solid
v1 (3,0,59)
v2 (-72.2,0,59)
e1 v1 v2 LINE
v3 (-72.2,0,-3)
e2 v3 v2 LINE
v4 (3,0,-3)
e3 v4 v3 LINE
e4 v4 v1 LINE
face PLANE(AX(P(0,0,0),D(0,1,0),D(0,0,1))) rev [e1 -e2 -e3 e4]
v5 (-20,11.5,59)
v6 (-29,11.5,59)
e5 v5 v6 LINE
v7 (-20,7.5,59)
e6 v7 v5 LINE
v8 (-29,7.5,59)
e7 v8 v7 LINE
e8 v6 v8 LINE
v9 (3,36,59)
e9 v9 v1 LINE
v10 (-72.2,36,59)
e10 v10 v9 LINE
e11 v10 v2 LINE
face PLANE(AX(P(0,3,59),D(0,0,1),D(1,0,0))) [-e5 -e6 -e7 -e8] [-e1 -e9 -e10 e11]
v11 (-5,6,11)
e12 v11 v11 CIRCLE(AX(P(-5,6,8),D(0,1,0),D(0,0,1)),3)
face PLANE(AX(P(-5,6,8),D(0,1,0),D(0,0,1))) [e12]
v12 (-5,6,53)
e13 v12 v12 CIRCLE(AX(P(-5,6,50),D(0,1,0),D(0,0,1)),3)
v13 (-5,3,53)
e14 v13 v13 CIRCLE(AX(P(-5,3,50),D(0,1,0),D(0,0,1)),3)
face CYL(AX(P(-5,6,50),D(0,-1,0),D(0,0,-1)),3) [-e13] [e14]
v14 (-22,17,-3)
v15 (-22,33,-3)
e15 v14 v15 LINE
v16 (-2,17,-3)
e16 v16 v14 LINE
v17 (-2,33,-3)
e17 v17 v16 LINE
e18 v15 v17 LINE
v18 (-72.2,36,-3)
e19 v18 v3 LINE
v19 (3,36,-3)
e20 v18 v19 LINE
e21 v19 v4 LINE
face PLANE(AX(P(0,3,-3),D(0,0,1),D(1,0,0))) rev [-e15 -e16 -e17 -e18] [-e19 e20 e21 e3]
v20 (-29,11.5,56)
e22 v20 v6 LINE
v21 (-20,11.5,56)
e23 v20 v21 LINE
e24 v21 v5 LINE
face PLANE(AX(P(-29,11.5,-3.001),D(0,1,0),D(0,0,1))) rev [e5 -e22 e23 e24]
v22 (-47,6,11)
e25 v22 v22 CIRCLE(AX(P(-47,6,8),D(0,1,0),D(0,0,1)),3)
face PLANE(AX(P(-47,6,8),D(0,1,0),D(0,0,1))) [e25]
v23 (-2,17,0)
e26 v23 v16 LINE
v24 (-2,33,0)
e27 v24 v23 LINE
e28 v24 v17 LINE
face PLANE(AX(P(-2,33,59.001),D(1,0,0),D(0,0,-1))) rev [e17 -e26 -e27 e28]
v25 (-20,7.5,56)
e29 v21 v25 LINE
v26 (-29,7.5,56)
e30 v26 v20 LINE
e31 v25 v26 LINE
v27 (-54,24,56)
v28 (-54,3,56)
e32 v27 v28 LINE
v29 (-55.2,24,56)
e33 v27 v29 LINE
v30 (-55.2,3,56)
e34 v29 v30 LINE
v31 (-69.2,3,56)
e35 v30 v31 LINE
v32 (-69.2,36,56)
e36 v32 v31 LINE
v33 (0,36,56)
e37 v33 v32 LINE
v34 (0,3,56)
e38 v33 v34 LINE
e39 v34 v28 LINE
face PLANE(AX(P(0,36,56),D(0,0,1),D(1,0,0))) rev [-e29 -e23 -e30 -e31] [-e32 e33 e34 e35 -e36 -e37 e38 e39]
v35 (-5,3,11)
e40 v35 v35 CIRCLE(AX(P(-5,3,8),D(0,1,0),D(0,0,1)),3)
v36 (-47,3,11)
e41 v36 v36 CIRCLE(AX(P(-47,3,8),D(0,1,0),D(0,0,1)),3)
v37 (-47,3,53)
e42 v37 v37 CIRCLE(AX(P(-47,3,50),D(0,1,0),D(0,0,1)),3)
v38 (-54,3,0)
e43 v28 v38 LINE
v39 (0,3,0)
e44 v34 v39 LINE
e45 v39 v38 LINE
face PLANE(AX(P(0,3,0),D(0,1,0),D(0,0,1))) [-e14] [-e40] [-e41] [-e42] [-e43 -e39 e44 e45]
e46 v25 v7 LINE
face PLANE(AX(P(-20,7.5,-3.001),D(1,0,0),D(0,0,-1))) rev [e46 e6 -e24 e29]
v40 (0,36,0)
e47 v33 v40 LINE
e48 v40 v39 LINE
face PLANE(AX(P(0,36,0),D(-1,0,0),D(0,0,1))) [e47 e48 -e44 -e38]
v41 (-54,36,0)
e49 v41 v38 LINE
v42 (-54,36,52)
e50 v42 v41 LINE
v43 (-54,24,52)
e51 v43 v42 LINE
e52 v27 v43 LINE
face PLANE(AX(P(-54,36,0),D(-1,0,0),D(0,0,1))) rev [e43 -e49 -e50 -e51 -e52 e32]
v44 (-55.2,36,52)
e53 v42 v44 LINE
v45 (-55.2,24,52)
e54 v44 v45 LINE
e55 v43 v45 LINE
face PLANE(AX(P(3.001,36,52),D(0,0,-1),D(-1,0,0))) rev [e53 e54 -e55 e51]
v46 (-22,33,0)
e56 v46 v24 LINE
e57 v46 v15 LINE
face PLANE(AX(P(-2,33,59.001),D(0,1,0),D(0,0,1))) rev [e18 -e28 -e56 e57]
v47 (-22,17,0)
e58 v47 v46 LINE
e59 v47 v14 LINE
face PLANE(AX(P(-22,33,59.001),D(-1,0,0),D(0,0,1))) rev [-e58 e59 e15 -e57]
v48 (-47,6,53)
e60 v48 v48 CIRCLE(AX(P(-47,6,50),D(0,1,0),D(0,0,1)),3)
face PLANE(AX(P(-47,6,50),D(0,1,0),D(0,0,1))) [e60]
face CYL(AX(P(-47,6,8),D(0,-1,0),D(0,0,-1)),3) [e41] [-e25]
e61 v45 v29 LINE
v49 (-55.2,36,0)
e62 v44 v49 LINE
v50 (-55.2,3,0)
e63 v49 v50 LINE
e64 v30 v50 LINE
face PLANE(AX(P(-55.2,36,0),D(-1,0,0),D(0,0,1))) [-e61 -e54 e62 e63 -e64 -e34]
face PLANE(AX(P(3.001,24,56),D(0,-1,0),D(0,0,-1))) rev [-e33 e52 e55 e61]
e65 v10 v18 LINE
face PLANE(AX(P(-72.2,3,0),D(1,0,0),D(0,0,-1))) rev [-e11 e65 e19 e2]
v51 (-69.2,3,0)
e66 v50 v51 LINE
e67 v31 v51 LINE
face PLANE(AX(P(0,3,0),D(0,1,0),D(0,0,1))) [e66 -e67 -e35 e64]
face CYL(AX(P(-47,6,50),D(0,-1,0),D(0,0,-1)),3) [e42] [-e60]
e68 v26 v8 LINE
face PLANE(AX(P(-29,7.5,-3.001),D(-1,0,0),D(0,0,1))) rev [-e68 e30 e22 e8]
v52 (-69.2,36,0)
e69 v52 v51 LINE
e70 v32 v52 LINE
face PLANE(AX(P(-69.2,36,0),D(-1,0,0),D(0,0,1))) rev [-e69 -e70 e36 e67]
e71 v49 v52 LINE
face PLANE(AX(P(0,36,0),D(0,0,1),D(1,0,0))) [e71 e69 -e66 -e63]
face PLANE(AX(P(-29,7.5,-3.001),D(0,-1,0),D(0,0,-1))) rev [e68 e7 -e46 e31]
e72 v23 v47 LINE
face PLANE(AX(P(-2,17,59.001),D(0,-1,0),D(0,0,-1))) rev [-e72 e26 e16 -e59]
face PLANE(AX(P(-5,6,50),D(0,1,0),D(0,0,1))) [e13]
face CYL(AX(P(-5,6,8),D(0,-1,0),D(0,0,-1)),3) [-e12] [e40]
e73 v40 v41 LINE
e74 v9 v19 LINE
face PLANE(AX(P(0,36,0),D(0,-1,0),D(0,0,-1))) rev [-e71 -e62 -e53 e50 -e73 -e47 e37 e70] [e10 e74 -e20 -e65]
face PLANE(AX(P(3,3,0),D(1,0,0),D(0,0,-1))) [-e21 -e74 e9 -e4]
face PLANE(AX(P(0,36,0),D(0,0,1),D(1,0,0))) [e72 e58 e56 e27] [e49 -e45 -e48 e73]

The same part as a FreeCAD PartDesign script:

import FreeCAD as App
import Part
import Sketcher

V = App.Vector
Q = App.Units.Quantity

doc = App.newDocument("Part")
params = doc.addObject("Spreadsheet::Sheet", "Params")
for row, (alias, value) in enumerate([
    ("sketch1_height", "62 mm"),
    ("sketch1_width", "75.2 mm"),
    ("pad1_length", "3 mm"),
    ("sketch2_diameter", "6 mm"),
    ("pad2_length", "3 mm"),
    ("sketch3_width", "54 mm"),
    ("sketch3_width2", "14 mm"),
    ("sketch3_height", "62 mm"),
    ("sketch3_height2", "56 mm"),
    ("sketch3_width3", "75.2 mm"),
    ("pad3_length", "33 mm"),
    ("sketch4_width", "9 mm"),
    ("sketch4_height", "4 mm"),
    ("sketch5_width", "12 mm"),
    ("sketch5_height", "4 mm"),
    ("sketch6_width", "20 mm"),
    ("sketch6_height", "16 mm"),
], start=1):
    params.set(f"A{row}", alias)
    params.set(f"B{row}", "=" + value)
    params.setAlias(f"B{row}", alias)

body = doc.addObject("PartDesign::Body", "Body")

# Sketch on XZ plane
sketch1 = body.newObject("Sketcher::SketchObject", "Sketch")
sketch1.AttachmentSupport = (doc.getObject("XZ_Plane"), [""])
sketch1.MapMode = "FlatFace"
sketch1.addGeometry([
    Part.LineSegment(V(-72, -3, 0), V(-72, 59, 0)),
    Part.LineSegment(V(-72, 59, 0), V(3, 59, 0)),
    Part.LineSegment(V(3, 59, 0), V(3, -3, 0)),
    Part.LineSegment(V(3, -3, 0), V(-72, -3, 0)),
], False)
sketch1.addConstraint([
    Sketcher.Constraint("Coincident", 0, 2, 1, 1),
    Sketcher.Constraint("Coincident", 1, 2, 2, 1),
    Sketcher.Constraint("Coincident", 2, 2, 3, 1),
    Sketcher.Constraint("Coincident", 3, 2, 0, 1),
    Sketcher.Constraint("Vertical", 0),
    Sketcher.Constraint("Horizontal", 1),
    Sketcher.Constraint("Vertical", 2),
    Sketcher.Constraint("Horizontal", 3),
    Sketcher.Constraint("DistanceY", 0, 1, 0, 2, Q("62 mm")),
    Sketcher.Constraint("DistanceX", 1, 1, 1, 2, Q("75.2 mm")),
    Sketcher.Constraint("DistanceY", -1, 1, 0, 2, Q("59 mm")),
    Sketcher.Constraint("DistanceX", -1, 1, 1, 2, Q("3 mm")),
])
sketch1.setExpression("Constraints[8]", "Params.sketch1_height")
sketch1.setExpression("Constraints[9]", "Params.sketch1_width")
pad1 = body.newObject("PartDesign::Pad", "Pad")
pad1.Profile = sketch1
pad1.setExpression("Length", "Params.pad1_length")
pad1.Reversed = True

# Sketch on XZ plane
sketch2 = body.newObject("Sketcher::SketchObject", "Sketch001")
sketch2.AttachmentSupport = (doc.getObject("XZ_Plane"), [""])
sketch2.MapMode = "FlatFace"
sketch2.AttachmentOffset = App.Placement(V(0, 0, -3), App.Rotation())
sketch2.addGeometry([
    Part.Circle(V(-47, 50, 0), V(0, 0, 1), 3),
    Part.Circle(V(-5, 50, 0), V(0, 0, 1), 3),
    Part.Circle(V(-5, 8, 0), V(0, 0, 1), 3),
    Part.Circle(V(-47, 8, 0), V(0, 0, 1), 3),
], False)
sketch2.addConstraint([
    Sketcher.Constraint("Equal", 0, 1),
    Sketcher.Constraint("Equal", 1, 2),
    Sketcher.Constraint("Equal", 2, 3),
    Sketcher.Constraint("Horizontal", 0, 3, 1, 3),
    Sketcher.Constraint("Horizontal", 2, 3, 3, 3),
    Sketcher.Constraint("Vertical", 1, 3, 2, 3),
    Sketcher.Constraint("Vertical", 0, 3, 3, 3),
    Sketcher.Constraint("Diameter", 0, Q("6 mm")),
    Sketcher.Constraint("DistanceX", 0, 3, -1, 1, Q("47 mm")),
    Sketcher.Constraint("DistanceY", -1, 1, 0, 3, Q("50 mm")),
    Sketcher.Constraint("DistanceX", 1, 3, -1, 1, Q("5 mm")),
    Sketcher.Constraint("DistanceY", -1, 1, 2, 3, Q("8 mm")),
])
sketch2.setExpression("Constraints[7]", "Params.sketch2_diameter")
pad2 = body.newObject("PartDesign::Pad", "Pad001")
pad2.Profile = sketch2
pad2.setExpression("Length", "Params.pad2_length")
pad2.Reversed = True

# Sketch on XZ plane
sketch3 = body.newObject("Sketcher::SketchObject", "Sketch002")
sketch3.AttachmentSupport = (doc.getObject("XZ_Plane"), [""])
sketch3.MapMode = "FlatFace"
sketch3.AttachmentOffset = App.Placement(V(0, 0, -3), App.Rotation())
sketch3.addGeometry([
    Part.LineSegment(V(-72, -3, 0), V(-72, 59, 0)),  # 0
    Part.LineSegment(V(-72, 59, 0), V(3, 59, 0)),  # 1
    Part.LineSegment(V(3, 59, 0), V(3, -3, 0)),  # 2
    Part.LineSegment(V(3, -3, 0), V(-72, -3, 0)),  # 3
    Part.LineSegment(V(0, 56, 0), V(-54, 56, 0)),  # 4
    Part.LineSegment(V(-54, 56, 0), V(-54, 0, 0)),  # 5
    Part.LineSegment(V(-54, 0, 0), V(0, 0, 0)),  # 6
    Part.LineSegment(V(0, 0, 0), V(0, 56, 0)),  # 7
    Part.LineSegment(V(-55, 56, 0), V(-69, 56, 0)),  # 8
    Part.LineSegment(V(-69, 56, 0), V(-69, 0, 0)),  # 9
    Part.LineSegment(V(-69, 0, 0), V(-55, 0, 0)),  # 10
    Part.LineSegment(V(-55, 0, 0), V(-55, 56, 0)),  # 11
], False)
sketch3.addConstraint([
    Sketcher.Constraint("Coincident", 0, 2, 1, 1),
    Sketcher.Constraint("Coincident", 1, 2, 2, 1),
    Sketcher.Constraint("Coincident", 2, 2, 3, 1),
    Sketcher.Constraint("Coincident", 3, 2, 0, 1),
    Sketcher.Constraint("Coincident", 4, 2, 5, 1),
    Sketcher.Constraint("Coincident", 5, 2, 6, 1),
    Sketcher.Constraint("Coincident", 6, 2, 7, 1),
    Sketcher.Constraint("Coincident", 7, 2, 4, 1),
    Sketcher.Constraint("Coincident", 8, 2, 9, 1),
    Sketcher.Constraint("Coincident", 9, 2, 10, 1),
    Sketcher.Constraint("Coincident", 10, 2, 11, 1),
    Sketcher.Constraint("Coincident", 11, 2, 8, 1),
    Sketcher.Constraint("Vertical", 0),
    Sketcher.Constraint("Horizontal", 1),
    Sketcher.Constraint("Vertical", 2),
    Sketcher.Constraint("Horizontal", 3),
    Sketcher.Constraint("Horizontal", 4),
    Sketcher.Constraint("Vertical", 5),
    Sketcher.Constraint("Horizontal", 6),
    Sketcher.Constraint("Vertical", 7),
    Sketcher.Constraint("Horizontal", 8),
    Sketcher.Constraint("Vertical", 9),
    Sketcher.Constraint("Horizontal", 10),
    Sketcher.Constraint("Vertical", 11),
    Sketcher.Constraint("Coincident", 6, 2, -1, 1),
    Sketcher.Constraint("PointOnObject", 9, 2, -1),
    Sketcher.Constraint("Horizontal", 7, 2, 8, 2),
    Sketcher.Constraint("DistanceX", 4, 2, 4, 1, Q("54 mm")),
    Sketcher.Constraint("DistanceX", 8, 2, 8, 1, Q("14 mm")),
    Sketcher.Constraint("DistanceY", 0, 1, 0, 2, Q("62 mm")),
    Sketcher.Constraint("DistanceY", 5, 2, 5, 1, Q("56 mm")),
    Sketcher.Constraint("DistanceX", 1, 1, 1, 2, Q("75.2 mm")),
    Sketcher.Constraint("DistanceY", -1, 1, 0, 2, Q("59 mm")),
    Sketcher.Constraint("DistanceX", -1, 1, 1, 2, Q("3 mm")),
    Sketcher.Constraint("DistanceX", 0, 2, 8, 2, Q("3 mm")),
])
sketch3.setExpression("Constraints[27]", "Params.sketch3_width")
sketch3.setExpression("Constraints[28]", "Params.sketch3_width2")
sketch3.setExpression("Constraints[29]", "Params.sketch3_height")
sketch3.setExpression("Constraints[30]", "Params.sketch3_height2")
sketch3.setExpression("Constraints[31]", "Params.sketch3_width3")
pad3 = body.newObject("PartDesign::Pad", "Pad002")
pad3.Profile = sketch3
pad3.setExpression("Length", "Params.pad3_length")
pad3.Reversed = True

# Sketch on XY plane
sketch4 = body.newObject("Sketcher::SketchObject", "Sketch003")
sketch4.AttachmentSupport = (doc.getObject("XY_Plane"), [""])
sketch4.MapMode = "FlatFace"
sketch4.AttachmentOffset = App.Placement(V(0, 0, 59), App.Rotation())
sketch4.addGeometry([
    Part.LineSegment(V(-29, 11.5, 0), V(-29, 7.5, 0)),
    Part.LineSegment(V(-29, 7.5, 0), V(-20, 7.5, 0)),
    Part.LineSegment(V(-20, 7.5, 0), V(-20, 11.5, 0)),
    Part.LineSegment(V(-20, 11.5, 0), V(-29, 11.5, 0)),
], False)
sketch4.addConstraint([
    Sketcher.Constraint("Coincident", 0, 2, 1, 1),
    Sketcher.Constraint("Coincident", 1, 2, 2, 1),
    Sketcher.Constraint("Coincident", 2, 2, 3, 1),
    Sketcher.Constraint("Coincident", 3, 2, 0, 1),
    Sketcher.Constraint("Vertical", 0),
    Sketcher.Constraint("Horizontal", 1),
    Sketcher.Constraint("Vertical", 2),
    Sketcher.Constraint("Horizontal", 3),
    Sketcher.Constraint("DistanceX", 1, 1, 1, 2, Q("9 mm")),
    Sketcher.Constraint("DistanceY", 0, 2, 0, 1, Q("4 mm")),
    Sketcher.Constraint("DistanceX", 0, 2, -1, 1, Q("29 mm")),
    Sketcher.Constraint("DistanceY", -1, 1, 0, 2, Q("7.5 mm")),
])
sketch4.setExpression("Constraints[8]", "Params.sketch4_width")
sketch4.setExpression("Constraints[9]", "Params.sketch4_height")
pocket1 = body.newObject("PartDesign::Pocket", "Pocket")
pocket1.Profile = sketch4
pocket1.Type = "UpToFirst"

# Sketch on YZ plane
sketch5 = body.newObject("Sketcher::SketchObject", "Sketch004")
sketch5.AttachmentSupport = (doc.getObject("YZ_Plane"), [""])
sketch5.MapMode = "FlatFace"
sketch5.AttachmentOffset = App.Placement(V(0, 0, -55.2), App.Rotation())
sketch5.addGeometry([
    Part.LineSegment(V(36, 52, 0), V(24, 52, 0)),
    Part.LineSegment(V(24, 52, 0), V(24, 56, 0)),
    Part.LineSegment(V(24, 56, 0), V(36, 56, 0)),
    Part.LineSegment(V(36, 56, 0), V(36, 52, 0)),
], False)
sketch5.addConstraint([
    Sketcher.Constraint("Coincident", 0, 2, 1, 1),
    Sketcher.Constraint("Coincident", 1, 2, 2, 1),
    Sketcher.Constraint("Coincident", 2, 2, 3, 1),
    Sketcher.Constraint("Coincident", 3, 2, 0, 1),
    Sketcher.Constraint("Horizontal", 0),
    Sketcher.Constraint("Vertical", 1),
    Sketcher.Constraint("Horizontal", 2),
    Sketcher.Constraint("Vertical", 3),
    Sketcher.Constraint("DistanceX", 0, 2, 0, 1, Q("12 mm")),
    Sketcher.Constraint("DistanceY", 1, 1, 1, 2, Q("4 mm")),
    Sketcher.Constraint("DistanceX", -1, 1, 0, 2, Q("24 mm")),
    Sketcher.Constraint("DistanceY", -1, 1, 0, 2, Q("52 mm")),
])
sketch5.setExpression("Constraints[8]", "Params.sketch5_width")
sketch5.setExpression("Constraints[9]", "Params.sketch5_height")
pocket2 = body.newObject("PartDesign::Pocket", "Pocket001")
pocket2.Profile = sketch5
pocket2.Type = "UpToFirst"
pocket2.Reversed = True

# Sketch on XY plane
sketch6 = body.newObject("Sketcher::SketchObject", "Sketch005")
sketch6.AttachmentSupport = (doc.getObject("XY_Plane"), [""])
sketch6.MapMode = "FlatFace"
sketch6.AttachmentOffset = App.Placement(V(0, 0, -3), App.Rotation())
sketch6.addGeometry([
    Part.LineSegment(V(-2, 33, 0), V(-2, 17, 0)),
    Part.LineSegment(V(-2, 17, 0), V(-22, 17, 0)),
    Part.LineSegment(V(-22, 17, 0), V(-22, 33, 0)),
    Part.LineSegment(V(-22, 33, 0), V(-2, 33, 0)),
], False)
sketch6.addConstraint([
    Sketcher.Constraint("Coincident", 0, 2, 1, 1),
    Sketcher.Constraint("Coincident", 1, 2, 2, 1),
    Sketcher.Constraint("Coincident", 2, 2, 3, 1),
    Sketcher.Constraint("Coincident", 3, 2, 0, 1),
    Sketcher.Constraint("Vertical", 0),
    Sketcher.Constraint("Horizontal", 1),
    Sketcher.Constraint("Vertical", 2),
    Sketcher.Constraint("Horizontal", 3),
    Sketcher.Constraint("DistanceX", 1, 2, 1, 1, Q("20 mm")),
    Sketcher.Constraint("DistanceY", 0, 2, 0, 1, Q("16 mm")),
    Sketcher.Constraint("DistanceX", 0, 2, -1, 1, Q("2 mm")),
    Sketcher.Constraint("DistanceY", -1, 1, 0, 2, Q("17 mm")),
])
sketch6.setExpression("Constraints[8]", "Params.sketch6_width")
sketch6.setExpression("Constraints[9]", "Params.sketch6_height")
pocket3 = body.newObject("PartDesign::Pocket", "Pocket002")
pocket3.Profile = sketch6
pocket3.Type = "UpToFirst"
pocket3.Reversed = True

doc.recompute()
